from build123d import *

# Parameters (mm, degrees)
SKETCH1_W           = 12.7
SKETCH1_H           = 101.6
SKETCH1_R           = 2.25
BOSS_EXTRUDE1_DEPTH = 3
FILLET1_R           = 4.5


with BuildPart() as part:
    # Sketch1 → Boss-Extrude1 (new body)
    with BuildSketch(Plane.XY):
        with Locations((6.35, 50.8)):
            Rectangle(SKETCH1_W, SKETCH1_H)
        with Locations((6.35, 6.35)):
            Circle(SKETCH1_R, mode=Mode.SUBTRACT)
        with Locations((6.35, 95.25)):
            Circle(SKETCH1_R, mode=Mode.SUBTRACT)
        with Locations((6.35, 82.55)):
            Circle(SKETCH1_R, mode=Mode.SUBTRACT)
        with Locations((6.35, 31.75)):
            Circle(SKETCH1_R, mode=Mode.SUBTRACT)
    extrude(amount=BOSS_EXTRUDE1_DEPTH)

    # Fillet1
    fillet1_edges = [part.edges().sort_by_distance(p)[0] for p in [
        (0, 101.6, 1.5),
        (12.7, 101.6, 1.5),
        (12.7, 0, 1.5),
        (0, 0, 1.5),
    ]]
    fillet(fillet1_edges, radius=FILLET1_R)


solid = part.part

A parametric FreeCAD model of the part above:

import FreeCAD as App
import Part
import Sketcher
from FreeCAD import Vector


def edges_at(feature, points):
    """Names of the edges that pass closest to the given points."""
    edges = feature.Shape.Edges
    near = lambda p: min(range(len(edges)), key=lambda i: edges[i].distToShape(Part.Vertex(*p))[0])
    return sorted({f"Edge{near(p) + 1}" for p in points})

doc = App.newDocument("Part")
body = doc.addObject("PartDesign::Body", "Body")

# Sketch on XY plane
sketch1 = body.newObject("Sketcher::SketchObject", "Sketch")
sketch1.AttachmentSupport = (doc.getObject("XY_Plane"), [""])
sketch1.MapMode = "FlatFace"
sketch1.addGeometry([
    Part.LineSegment(Vector(0, 101.6, 0), Vector(0, 0, 0)),  # 0
    Part.LineSegment(Vector(0, 0, 0), Vector(12.7, 0, 0)),  # 1
    Part.LineSegment(Vector(12.7, 0, 0), Vector(12.7, 101.6, 0)),  # 2
    Part.LineSegment(Vector(12.7, 101.6, 0), Vector(0, 101.6, 0)),  # 3
    Part.Circle(Vector(6.3, 6.3, 0), Vector(0, 0, 1), 2.2),  # 4
    Part.Circle(Vector(6.3, 31.8, 0), Vector(0, 0, 1), 2.2),  # 5
    Part.Circle(Vector(6.3, 82.5, 0), Vector(0, 0, 1), 2.2),  # 6
    Part.Circle(Vector(6.3, 95.2, 0), Vector(0, 0, 1), 2.2),  # 7
], False)
sketch1.addConstraint([
    Sketcher.Constraint("Coincident", 0, 2, 1, 1),
    Sketcher.Constraint("Coincident", 1, 2, 2, 1),
    Sketcher.Constraint("Coincident", 2, 2, 3, 1),
    Sketcher.Constraint("Coincident", 3, 2, 0, 1),
    Sketcher.Constraint("Vertical", 0),
    Sketcher.Constraint("Horizontal", 1),
    Sketcher.Constraint("Vertical", 2),
    Sketcher.Constraint("Horizontal", 3),
    Sketcher.Constraint("Coincident", 0, 2, -1, 1),
    Sketcher.Constraint("Equal", 4, 5),
    Sketcher.Constraint("Equal", 5, 6),
    Sketcher.Constraint("Equal", 6, 7),
    Sketcher.Constraint("Vertical", 4, 3, 5, 3),
    Sketcher.Constraint("Vertical", 5, 3, 6, 3),
    Sketcher.Constraint("Vertical", 6, 3, 7, 3),
    Sketcher.Constraint("Diameter", 4, 4.5),
    Sketcher.Constraint("DistanceX", 1, 1, 1, 2, 12.7),
    Sketcher.Constraint("DistanceY", 0, 2, 0, 1, 101.6),
    Sketcher.Constraint("DistanceY", 4, 3, 5, 3, 25.4),
    Sketcher.Constraint("DistanceY", 5, 3, 6, 3, 50.8),
    Sketcher.Constraint("DistanceY", 6, 3, 7, 3, 12.7),
    Sketcher.Constraint("DistanceX", -1, 1, 4, 3, 6.35),
    Sketcher.Constraint("DistanceY", -1, 1, 4, 3, 6.35),
])
pad1 = body.newObject("PartDesign::Pad", "Pad")
pad1.Profile = sketch1
pad1.Length = 3
doc.recompute()

fillet = body.newObject("PartDesign::Fillet", "Fillet")
fillet.Base = (pad1, edges_at(pad1, [
    (0, 101.6, 1.5),
    (12.7, 101.6, 1.5),
    (12.7, 0, 1.5),
    (0, 0, 1.5),
]))
fillet.Radius = 4.5

doc.recompute()
